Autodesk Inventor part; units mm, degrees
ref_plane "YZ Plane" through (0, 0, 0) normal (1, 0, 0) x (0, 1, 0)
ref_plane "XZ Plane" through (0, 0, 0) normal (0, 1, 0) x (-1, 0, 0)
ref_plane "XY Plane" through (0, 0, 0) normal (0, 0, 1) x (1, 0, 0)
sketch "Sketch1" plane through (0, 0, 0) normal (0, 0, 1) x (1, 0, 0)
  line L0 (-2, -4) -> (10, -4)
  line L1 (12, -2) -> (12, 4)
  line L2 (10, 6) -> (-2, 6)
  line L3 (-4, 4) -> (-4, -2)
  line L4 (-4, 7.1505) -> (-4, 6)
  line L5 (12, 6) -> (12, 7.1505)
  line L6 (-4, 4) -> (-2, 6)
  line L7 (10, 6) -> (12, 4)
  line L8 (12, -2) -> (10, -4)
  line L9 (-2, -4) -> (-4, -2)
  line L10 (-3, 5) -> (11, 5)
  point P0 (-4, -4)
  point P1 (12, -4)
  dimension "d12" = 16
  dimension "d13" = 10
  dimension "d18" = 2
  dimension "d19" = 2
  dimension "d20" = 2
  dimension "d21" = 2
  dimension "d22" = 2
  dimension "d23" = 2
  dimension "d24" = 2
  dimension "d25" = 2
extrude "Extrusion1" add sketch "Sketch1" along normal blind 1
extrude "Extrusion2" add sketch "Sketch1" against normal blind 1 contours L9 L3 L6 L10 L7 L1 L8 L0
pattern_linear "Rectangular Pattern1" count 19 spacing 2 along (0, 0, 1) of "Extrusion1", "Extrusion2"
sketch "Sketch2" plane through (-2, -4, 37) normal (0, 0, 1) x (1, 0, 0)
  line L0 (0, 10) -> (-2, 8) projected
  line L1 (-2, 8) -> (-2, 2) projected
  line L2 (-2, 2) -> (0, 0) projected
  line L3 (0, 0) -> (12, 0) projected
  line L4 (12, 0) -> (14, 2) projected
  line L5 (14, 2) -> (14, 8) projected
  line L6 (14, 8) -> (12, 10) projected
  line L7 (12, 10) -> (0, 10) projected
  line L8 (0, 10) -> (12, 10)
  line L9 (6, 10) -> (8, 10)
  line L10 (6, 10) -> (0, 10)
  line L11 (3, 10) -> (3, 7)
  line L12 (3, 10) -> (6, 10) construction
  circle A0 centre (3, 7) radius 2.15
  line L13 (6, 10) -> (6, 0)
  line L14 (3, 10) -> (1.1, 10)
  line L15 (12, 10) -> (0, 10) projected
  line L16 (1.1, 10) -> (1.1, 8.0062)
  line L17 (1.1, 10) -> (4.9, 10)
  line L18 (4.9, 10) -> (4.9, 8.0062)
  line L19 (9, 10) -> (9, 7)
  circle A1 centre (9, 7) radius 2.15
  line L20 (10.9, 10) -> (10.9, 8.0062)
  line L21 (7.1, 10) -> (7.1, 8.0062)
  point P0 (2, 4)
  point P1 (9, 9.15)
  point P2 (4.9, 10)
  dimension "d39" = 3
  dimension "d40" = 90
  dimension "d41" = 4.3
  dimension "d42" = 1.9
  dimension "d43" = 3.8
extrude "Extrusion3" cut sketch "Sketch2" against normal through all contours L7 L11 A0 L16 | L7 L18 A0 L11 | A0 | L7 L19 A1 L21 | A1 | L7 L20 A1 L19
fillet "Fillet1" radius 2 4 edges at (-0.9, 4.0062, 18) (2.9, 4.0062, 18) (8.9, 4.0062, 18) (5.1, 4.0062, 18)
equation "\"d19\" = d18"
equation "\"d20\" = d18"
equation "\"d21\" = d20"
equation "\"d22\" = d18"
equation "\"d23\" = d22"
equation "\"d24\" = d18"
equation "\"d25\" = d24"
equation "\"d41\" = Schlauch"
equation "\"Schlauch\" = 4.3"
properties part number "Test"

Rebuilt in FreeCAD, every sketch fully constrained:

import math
import FreeCAD as App
import Part
import Sketcher

V = App.Vector
Q = App.Units.Quantity


def edges_at(feature, points):
    """Names of the edges that pass closest to the given points."""
    edges = feature.Shape.Edges
    near = lambda p: min(range(len(edges)), key=lambda i: edges[i].distToShape(Part.Vertex(*p))[0])
    return sorted({f"Edge{near(p) + 1}" for p in points})

doc = App.newDocument("Part")
body = doc.addObject("PartDesign::Body", "Body")

sketch1 = body.newObject("Sketcher::SketchObject", "Sketch")
sketch1.AttachmentSupport = (doc.getObject("XY_Plane"), [""])
sketch1.MapMode = "FlatFace"
sketch1.addGeometry([
    Part.LineSegment(V(-4, -2, 0), V(-2, -4, 0)),
    Part.LineSegment(V(-2, -4, 0), V(10, -4, 0)),
    Part.LineSegment(V(10, -4, 0), V(12, -2, 0)),
    Part.LineSegment(V(12, -2, 0), V(12, 4, 0)),
    Part.LineSegment(V(12, 4, 0), V(10, 6, 0)),
    Part.LineSegment(V(10, 6, 0), V(-2, 6, 0)),
    Part.LineSegment(V(-2, 6, 0), V(-4, 4, 0)),
    Part.LineSegment(V(-4, 4, 0), V(-4, -2, 0)),
], False)
sketch1.addConstraint([
    Sketcher.Constraint("Coincident", 0, 2, 1, 1),
    Sketcher.Constraint("Coincident", 1, 2, 2, 1),
    Sketcher.Constraint("Coincident", 2, 2, 3, 1),
    Sketcher.Constraint("Coincident", 3, 2, 4, 1),
    Sketcher.Constraint("Coincident", 4, 2, 5, 1),
    Sketcher.Constraint("Coincident", 5, 2, 6, 1),
    Sketcher.Constraint("Coincident", 6, 2, 7, 1),
    Sketcher.Constraint("Coincident", 7, 2, 0, 1),
    Sketcher.Constraint("Horizontal", 1),
    Sketcher.Constraint("Vertical", 3),
    Sketcher.Constraint("Horizontal", 5),
    Sketcher.Constraint("Vertical", 7),
    Sketcher.Constraint("Perpendicular", 0, 2),
    Sketcher.Constraint("Perpendicular", 2, 4),
    Sketcher.Constraint("Perpendicular", 4, 6),
    Sketcher.Constraint("Horizontal", 3, 2, 6, 2),
    Sketcher.Constraint("Horizontal", 2, 2, 7, 2),
    Sketcher.Constraint("Vertical", 1, 2, 4, 2),
    Sketcher.Constraint("Vertical", 0, 2, 5, 2),
    Sketcher.Constraint("DistanceX", 0, 2, -1, 1, Q("2 mm")),
    Sketcher.Constraint("DistanceX", -1, 1, 1, 2, Q("10 mm")),
    Sketcher.Constraint("DistanceY", 2, 2, -1, 1, Q("2 mm")),
    Sketcher.Constraint("DistanceX", 1, 2, 2, 2, Q("2 mm")),
    Sketcher.Constraint("DistanceY", 1, 2, 4, 2, Q("10 mm")),
])
pad1 = body.newObject("PartDesign::Pad", "Pad")
pad1.Profile = sketch1
pad1.Length = 1

sketch2 = body.newObject("Sketcher::SketchObject", "Sketch001")
sketch2.AttachmentSupport = (doc.getObject("XY_Plane"), [""])
sketch2.MapMode = "FlatFace"
sketch2.addGeometry([
    Part.LineSegment(V(-4, -2, 0), V(-2, -4, 0)),
    Part.LineSegment(V(-2, -4, 0), V(10, -4, 0)),
    Part.LineSegment(V(10, -4, 0), V(12, -2, 0)),
    Part.LineSegment(V(12, -2, 0), V(12, 4, 0)),
    Part.LineSegment(V(12, 4, 0), V(11, 5, 0)),
    Part.LineSegment(V(11, 5, 0), V(-3, 5, 0)),
    Part.LineSegment(V(-3, 5, 0), V(-4, 4, 0)),
    Part.LineSegment(V(-4, 4, 0), V(-4, -2, 0)),
], False)
sketch2.addConstraint([
    Sketcher.Constraint("Coincident", 0, 2, 1, 1),
    Sketcher.Constraint("Coincident", 1, 2, 2, 1),
    Sketcher.Constraint("Coincident", 2, 2, 3, 1),
    Sketcher.Constraint("Coincident", 3, 2, 4, 1),
    Sketcher.Constraint("Coincident", 4, 2, 5, 1),
    Sketcher.Constraint("Coincident", 5, 2, 6, 1),
    Sketcher.Constraint("Coincident", 6, 2, 7, 1),
    Sketcher.Constraint("Coincident", 7, 2, 0, 1),
    Sketcher.Constraint("Horizontal", 1),
    Sketcher.Constraint("Vertical", 3),
    Sketcher.Constraint("Horizontal", 5),
    Sketcher.Constraint("Vertical", 7),
    Sketcher.Constraint("Perpendicular", 0, 2),
    Sketcher.Constraint("Perpendicular", 2, 4),
    Sketcher.Constraint("Perpendicular", 4, 6),
    Sketcher.Constraint("Horizontal", 3, 2, 6, 2),
    Sketcher.Constraint("Horizontal", 2, 2, 7, 2),
    Sketcher.Constraint("Equal", 0, 2),
    Sketcher.Constraint("DistanceX", 0, 2, -1, 1, Q("2 mm")),
    Sketcher.Constraint("DistanceX", -1, 1, 1, 2, Q("10 mm")),
    Sketcher.Constraint("DistanceY", 2, 2, -1, 1, Q("2 mm")),
    Sketcher.Constraint("DistanceX", 1, 2, 2, 2, Q("2 mm")),
    Sketcher.Constraint("DistanceX", 5, 2, 5, 1, Q("14 mm")),
    Sketcher.Constraint("DistanceY", 3, 1, 3, 2, Q("6 mm")),
])
pad2 = body.newObject("PartDesign::Pad", "Pad001")
pad2.Profile = sketch2
pad2.Length = 1
pad2.Reversed = True
doc.recompute()

linearpattern = body.newObject("PartDesign::LinearPattern", "LinearPattern")
linearpattern.Originals = [pad1, pad2]
linearpattern.Direction = (doc.getObject("Z_Axis"), [""])
linearpattern.Mode = "offset"
linearpattern.Offset = 2
linearpattern.Occurrences = 19
body.Tip = linearpattern

sketch3 = body.newObject("Sketcher::SketchObject", "Sketch002")
sketch3.AttachmentSupport = (doc.getObject("XY_Plane"), [""])
sketch3.MapMode = "FlatFace"
sketch3.AttachmentOffset = App.Placement(V(0, 0, 37), App.Rotation())
sketch3.addGeometry([
    Part.LineSegment(V(-0.9, 6, 0), V(-0.9, 4, 0)),
    Part.ArcOfCircle(Part.Circle(V(1, 3, 0), V(0, 0, 1), 2.1), math.radians(152), math.radians(388)),
    Part.LineSegment(V(2.9, 4, 0), V(2.9, 6, 0)),
    Part.LineSegment(V(2.9, 6, 0), V(-0.9, 6, 0)),
    Part.LineSegment(V(5.1, 6, 0), V(5.1, 4, 0)),
    Part.ArcOfCircle(Part.Circle(V(7, 3, 0), V(0, 0, 1), 2.1), math.radians(152), math.radians(388)),
    Part.LineSegment(V(8.9, 4, 0), V(8.9, 6, 0)),
    Part.LineSegment(V(8.9, 6, 0), V(5.1, 6, 0)),
], False)
sketch3.addConstraint([
    Sketcher.Constraint("Coincident", 0, 2, 1, 1),
    Sketcher.Constraint("Coincident", 1, 2, 2, 1),
    Sketcher.Constraint("Coincident", 2, 2, 3, 1),
    Sketcher.Constraint("Coincident", 3, 2, 0, 1),
    Sketcher.Constraint("Coincident", 4, 2, 5, 1),
    Sketcher.Constraint("Coincident", 5, 2, 6, 1),
    Sketcher.Constraint("Coincident", 6, 2, 7, 1),
    Sketcher.Constraint("Coincident", 7, 2, 4, 1),
    Sketcher.Constraint("Vertical", 0),
    Sketcher.Constraint("Vertical", 2),
    Sketcher.Constraint("Horizontal", 3),
    Sketcher.Constraint("Vertical", 4),
    Sketcher.Constraint("Vertical", 6),
    Sketcher.Constraint("Horizontal", 7),
    Sketcher.Constraint("Equal", 1, 5),
    Sketcher.Constraint("Horizontal", 1, 3, 5, 3),
    Sketcher.Constraint("Horizontal", 0, 2, 1, 2),
    Sketcher.Constraint("Horizontal", 1, 2, 4, 2),
    Sketcher.Constraint("Horizontal", 4, 2, 5, 2),
    Sketcher.Constraint("Horizontal", 3, 2, 6, 2),
    Sketcher.Constraint("Radius", 1, Q("2.15 mm")),
    Sketcher.Constraint("DistanceX", 3, 2, 3, 1, Q("3.8 mm")),
    Sketcher.Constraint("DistanceY", -1, 1, 1, 3, Q("3 mm")),
    Sketcher.Constraint("DistanceY", 1, 3, 2, 2, Q("3 mm")),
    Sketcher.Constraint("DistanceX", -1, 1, 1, 3, Q("1 mm")),
    Sketcher.Constraint("DistanceX", -1, 1, 5, 3, Q("7 mm")),
])
pocket1 = body.newObject("PartDesign::Pocket", "Pocket")
pocket1.Profile = sketch3
pocket1.Type = "ThroughAll"
doc.recompute()

fillet = body.newObject("PartDesign::Fillet", "Fillet")
fillet.Base = (pocket1, edges_at(pocket1, [
    (-0.9, 4.006, 18),
    (2.9, 4.006, 18),
    (8.9, 4.006, 18),
    (5.1, 4.006, 18),
]))
fillet.Radius = 2

doc.recompute()
